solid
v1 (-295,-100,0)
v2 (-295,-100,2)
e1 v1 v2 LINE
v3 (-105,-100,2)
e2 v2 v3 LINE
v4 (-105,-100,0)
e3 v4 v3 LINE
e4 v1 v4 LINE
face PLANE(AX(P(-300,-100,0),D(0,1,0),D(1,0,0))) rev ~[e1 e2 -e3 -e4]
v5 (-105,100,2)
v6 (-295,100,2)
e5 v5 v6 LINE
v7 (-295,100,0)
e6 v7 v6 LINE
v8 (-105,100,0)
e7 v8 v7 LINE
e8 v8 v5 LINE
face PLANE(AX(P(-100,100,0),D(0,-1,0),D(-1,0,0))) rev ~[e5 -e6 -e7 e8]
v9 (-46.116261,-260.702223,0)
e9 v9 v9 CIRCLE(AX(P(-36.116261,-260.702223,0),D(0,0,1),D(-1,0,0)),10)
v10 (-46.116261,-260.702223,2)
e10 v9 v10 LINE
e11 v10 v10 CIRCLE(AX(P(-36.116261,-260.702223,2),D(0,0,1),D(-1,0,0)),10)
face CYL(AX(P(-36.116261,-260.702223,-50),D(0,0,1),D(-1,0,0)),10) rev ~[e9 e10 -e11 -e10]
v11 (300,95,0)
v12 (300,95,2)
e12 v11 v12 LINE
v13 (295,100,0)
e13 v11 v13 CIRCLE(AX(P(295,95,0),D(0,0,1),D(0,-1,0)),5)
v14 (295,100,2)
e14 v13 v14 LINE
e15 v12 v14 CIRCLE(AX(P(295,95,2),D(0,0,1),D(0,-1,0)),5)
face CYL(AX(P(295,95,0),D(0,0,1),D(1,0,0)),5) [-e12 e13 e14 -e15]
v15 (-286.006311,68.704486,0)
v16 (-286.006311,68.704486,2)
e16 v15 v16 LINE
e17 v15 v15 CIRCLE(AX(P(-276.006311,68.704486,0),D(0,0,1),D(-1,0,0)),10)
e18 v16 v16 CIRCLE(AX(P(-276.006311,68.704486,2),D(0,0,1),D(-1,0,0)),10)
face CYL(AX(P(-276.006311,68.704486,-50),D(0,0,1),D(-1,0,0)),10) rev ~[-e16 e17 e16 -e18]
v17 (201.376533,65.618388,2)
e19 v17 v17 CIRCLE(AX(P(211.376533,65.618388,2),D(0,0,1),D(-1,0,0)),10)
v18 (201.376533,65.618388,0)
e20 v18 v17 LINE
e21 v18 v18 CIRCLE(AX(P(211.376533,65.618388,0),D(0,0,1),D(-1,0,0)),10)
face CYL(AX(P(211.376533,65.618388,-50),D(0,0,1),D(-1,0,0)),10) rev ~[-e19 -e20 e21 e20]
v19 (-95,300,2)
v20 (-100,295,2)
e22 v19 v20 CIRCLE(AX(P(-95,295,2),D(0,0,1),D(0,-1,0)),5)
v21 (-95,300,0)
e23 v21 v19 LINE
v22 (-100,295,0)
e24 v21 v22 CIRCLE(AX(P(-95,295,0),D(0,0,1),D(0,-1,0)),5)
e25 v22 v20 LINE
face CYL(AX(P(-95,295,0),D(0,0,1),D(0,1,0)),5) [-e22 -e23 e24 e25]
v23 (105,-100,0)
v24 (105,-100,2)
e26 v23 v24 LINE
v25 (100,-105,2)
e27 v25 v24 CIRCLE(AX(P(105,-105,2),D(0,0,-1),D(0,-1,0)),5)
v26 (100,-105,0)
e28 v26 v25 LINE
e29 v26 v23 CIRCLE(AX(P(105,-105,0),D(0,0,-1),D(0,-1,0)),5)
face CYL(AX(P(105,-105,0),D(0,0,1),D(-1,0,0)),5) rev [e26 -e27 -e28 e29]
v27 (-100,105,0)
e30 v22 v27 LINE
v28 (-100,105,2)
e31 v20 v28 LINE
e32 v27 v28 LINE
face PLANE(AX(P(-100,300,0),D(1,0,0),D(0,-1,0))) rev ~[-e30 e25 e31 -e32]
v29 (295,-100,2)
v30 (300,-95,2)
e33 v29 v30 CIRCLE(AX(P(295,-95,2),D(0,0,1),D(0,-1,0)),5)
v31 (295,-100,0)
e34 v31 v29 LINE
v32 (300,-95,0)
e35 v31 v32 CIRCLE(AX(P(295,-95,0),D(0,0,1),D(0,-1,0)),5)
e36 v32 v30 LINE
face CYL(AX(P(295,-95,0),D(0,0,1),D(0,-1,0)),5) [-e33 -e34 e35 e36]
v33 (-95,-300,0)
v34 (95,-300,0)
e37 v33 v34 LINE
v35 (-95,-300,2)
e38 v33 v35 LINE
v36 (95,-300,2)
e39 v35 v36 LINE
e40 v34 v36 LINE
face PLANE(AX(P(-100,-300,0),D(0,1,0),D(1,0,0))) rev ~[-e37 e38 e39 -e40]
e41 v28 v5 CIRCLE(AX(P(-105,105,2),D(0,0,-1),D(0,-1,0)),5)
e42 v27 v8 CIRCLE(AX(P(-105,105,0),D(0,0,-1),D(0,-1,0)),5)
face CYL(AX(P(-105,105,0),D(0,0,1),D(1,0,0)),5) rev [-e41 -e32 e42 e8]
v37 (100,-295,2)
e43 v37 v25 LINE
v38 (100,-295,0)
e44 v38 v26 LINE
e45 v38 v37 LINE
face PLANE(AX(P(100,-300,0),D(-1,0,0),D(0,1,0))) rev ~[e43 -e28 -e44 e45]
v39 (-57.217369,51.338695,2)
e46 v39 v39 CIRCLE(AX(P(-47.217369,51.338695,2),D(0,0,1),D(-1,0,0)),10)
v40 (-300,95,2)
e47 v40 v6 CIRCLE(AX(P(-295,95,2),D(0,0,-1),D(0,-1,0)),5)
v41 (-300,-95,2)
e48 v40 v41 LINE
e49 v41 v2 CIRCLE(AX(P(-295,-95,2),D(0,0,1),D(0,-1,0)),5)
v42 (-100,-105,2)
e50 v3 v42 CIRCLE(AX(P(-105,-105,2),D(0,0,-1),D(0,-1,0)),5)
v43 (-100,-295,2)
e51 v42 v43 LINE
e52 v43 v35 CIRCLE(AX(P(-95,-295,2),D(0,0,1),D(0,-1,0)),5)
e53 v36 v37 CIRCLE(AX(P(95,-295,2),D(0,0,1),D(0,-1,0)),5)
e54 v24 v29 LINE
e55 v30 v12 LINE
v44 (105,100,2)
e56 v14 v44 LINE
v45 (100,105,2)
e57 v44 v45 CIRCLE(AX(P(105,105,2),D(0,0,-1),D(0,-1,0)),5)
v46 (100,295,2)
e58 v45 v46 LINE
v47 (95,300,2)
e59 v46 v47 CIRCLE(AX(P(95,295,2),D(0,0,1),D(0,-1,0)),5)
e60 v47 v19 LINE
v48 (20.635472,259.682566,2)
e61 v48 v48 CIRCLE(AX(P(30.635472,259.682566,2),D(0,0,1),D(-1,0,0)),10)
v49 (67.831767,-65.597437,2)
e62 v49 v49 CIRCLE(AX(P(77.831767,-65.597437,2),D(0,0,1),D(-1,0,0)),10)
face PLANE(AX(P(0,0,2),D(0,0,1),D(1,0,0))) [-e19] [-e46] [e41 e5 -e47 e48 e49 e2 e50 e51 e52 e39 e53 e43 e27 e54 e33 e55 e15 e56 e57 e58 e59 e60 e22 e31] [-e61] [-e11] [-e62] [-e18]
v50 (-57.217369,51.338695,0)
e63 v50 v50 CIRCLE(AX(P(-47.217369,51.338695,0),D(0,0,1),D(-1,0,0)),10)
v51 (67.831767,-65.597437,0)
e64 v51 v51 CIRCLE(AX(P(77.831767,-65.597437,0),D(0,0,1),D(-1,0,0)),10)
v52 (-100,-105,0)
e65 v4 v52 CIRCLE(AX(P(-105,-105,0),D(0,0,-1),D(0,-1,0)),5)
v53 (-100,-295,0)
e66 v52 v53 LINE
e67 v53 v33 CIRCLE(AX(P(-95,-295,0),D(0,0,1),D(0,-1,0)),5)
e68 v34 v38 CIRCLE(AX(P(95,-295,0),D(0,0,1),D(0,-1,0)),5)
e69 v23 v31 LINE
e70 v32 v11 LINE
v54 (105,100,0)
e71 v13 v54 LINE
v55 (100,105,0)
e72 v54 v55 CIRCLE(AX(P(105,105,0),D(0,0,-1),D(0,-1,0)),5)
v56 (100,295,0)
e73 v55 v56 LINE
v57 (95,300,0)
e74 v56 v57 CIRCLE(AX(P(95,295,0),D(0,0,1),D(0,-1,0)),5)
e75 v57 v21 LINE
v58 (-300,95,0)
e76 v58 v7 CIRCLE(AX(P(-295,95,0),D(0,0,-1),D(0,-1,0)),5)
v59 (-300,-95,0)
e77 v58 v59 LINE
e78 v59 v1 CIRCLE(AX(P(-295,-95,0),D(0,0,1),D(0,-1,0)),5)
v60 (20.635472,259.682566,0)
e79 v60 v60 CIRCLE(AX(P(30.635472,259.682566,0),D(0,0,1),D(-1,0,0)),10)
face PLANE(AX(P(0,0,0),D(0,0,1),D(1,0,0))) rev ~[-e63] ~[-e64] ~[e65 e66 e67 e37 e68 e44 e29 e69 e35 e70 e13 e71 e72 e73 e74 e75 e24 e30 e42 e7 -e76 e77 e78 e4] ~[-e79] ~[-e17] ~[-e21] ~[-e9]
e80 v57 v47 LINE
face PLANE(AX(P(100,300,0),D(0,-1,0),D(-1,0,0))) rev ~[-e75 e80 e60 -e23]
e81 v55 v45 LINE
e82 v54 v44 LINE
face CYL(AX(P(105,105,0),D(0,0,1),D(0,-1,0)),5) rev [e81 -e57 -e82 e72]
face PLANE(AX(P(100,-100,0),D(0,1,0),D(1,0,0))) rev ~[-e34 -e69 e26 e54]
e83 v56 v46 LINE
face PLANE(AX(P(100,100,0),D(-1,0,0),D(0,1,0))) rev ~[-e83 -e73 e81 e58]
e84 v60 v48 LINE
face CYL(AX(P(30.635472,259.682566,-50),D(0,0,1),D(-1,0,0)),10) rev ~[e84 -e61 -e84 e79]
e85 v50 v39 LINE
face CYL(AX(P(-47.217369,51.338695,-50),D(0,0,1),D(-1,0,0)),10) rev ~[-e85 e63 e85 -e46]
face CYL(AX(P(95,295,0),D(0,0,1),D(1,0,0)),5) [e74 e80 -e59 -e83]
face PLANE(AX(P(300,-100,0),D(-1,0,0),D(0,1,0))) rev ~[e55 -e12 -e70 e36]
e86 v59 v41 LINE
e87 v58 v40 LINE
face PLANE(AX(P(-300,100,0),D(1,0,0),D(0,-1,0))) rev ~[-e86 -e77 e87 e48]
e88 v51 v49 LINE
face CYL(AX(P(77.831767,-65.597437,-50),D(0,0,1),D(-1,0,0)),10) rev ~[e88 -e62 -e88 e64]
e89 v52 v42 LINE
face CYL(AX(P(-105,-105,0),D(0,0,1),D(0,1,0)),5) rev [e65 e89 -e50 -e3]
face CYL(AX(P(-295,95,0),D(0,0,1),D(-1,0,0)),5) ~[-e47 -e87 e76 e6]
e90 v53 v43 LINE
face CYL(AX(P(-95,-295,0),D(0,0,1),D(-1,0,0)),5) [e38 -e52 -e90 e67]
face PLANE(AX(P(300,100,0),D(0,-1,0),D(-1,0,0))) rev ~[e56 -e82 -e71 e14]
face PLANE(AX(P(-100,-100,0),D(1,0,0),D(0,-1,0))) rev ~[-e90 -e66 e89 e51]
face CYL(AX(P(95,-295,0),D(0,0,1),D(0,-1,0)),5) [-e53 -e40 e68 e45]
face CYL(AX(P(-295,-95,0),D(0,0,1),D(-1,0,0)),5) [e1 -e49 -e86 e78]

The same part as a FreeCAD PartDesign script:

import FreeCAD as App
import Part
import Sketcher
from FreeCAD import Vector
Q = App.Units.Quantity


def edges_at(feature, points):
    """Names of the edges that pass closest to the given points."""
    edges = feature.Shape.Edges
    near = lambda p: min(range(len(edges)), key=lambda i: edges[i].distToShape(Part.Vertex(*p))[0])
    return sorted({f"Edge{near(p) + 1}" for p in points})


def add_polygon(sketch, points):
    """Adds a closed chain of lines whose ends are joined by coincident constraints."""
    first, n = sketch.GeometryCount, len(points)
    for a, b in zip(points, points[1:] + points[:1]):
        sketch.addGeometry(Part.LineSegment(App.Vector(*a, 0), App.Vector(*b, 0)), False)
    for i in range(n):
        sketch.addConstraint(Sketcher.Constraint("Coincident", first + i, 2, first + (i + 1) % n, 1))

doc = App.newDocument("Part")
body = doc.addObject("PartDesign::Body", "Body")

# Sketch on XY plane
sketch1 = body.newObject("Sketcher::SketchObject", "Sketch")
sketch1.AttachmentSupport = (doc.getObject("XY_Plane"), [""])
sketch1.MapMode = "FlatFace"
add_polygon(sketch1, [(-300, 100), (-300, -100), (-100, -100), (-100, -300), (100, -300), (100, -100), (300, -100), (300, 100), (100, 100), (100, 300), (-100, 300), (-100, 100)])  # lines 0-11
sketch1.addConstraint([
    Sketcher.Constraint("Vertical", 0),
    Sketcher.Constraint("Horizontal", 1),
    Sketcher.Constraint("Vertical", 2),
    Sketcher.Constraint("Horizontal", 3),
    Sketcher.Constraint("Vertical", 4),
    Sketcher.Constraint("Horizontal", 5),
    Sketcher.Constraint("Vertical", 6),
    Sketcher.Constraint("Horizontal", 7),
    Sketcher.Constraint("Vertical", 8),
    Sketcher.Constraint("Horizontal", 9),
    Sketcher.Constraint("Vertical", 10),
    Sketcher.Constraint("Horizontal", 11),
    Sketcher.Constraint("Symmetric", 0, 2, 6, 2, -1, 1),
    Sketcher.Constraint("Symmetric", 2, 2, 8, 2, -1, 1),
    Sketcher.Constraint("Symmetric", 4, 2, 10, 2, -1, 1),
    Sketcher.Constraint("Symmetric", 1, 2, 4, 2, -2),
    Sketcher.Constraint("Equal", 1, 3),
    Sketcher.Constraint("Equal", 11, 0),
    Sketcher.Constraint("Equal", 0, 2),
    Sketcher.Constraint("DistanceX", 1, 1, 1, 2, Q("200 mm")),
])
pad1 = body.newObject("PartDesign::Pad", "Pad")
pad1.Profile = sketch1
pad1.Length = 2
doc.recompute()

fillet = body.newObject("PartDesign::Fillet", "Fillet")
fillet.Base = (pad1, edges_at(pad1, [
    (-300, -100, 1),
    (-100, -100, 1),
    (-100, -300, 1),
    (100, -300, 1),
    (-300, 100, 1),
    (-100, 300, 1),
    (100, 300, 1),
    (100, 100, 1),
    (300, 100, 1),
    (300, -100, 1),
    (-100, 100, 1),
    (100, -100, 1),
]))
fillet.Radius = 5

# Sketch on XY plane
sketch2 = body.newObject("Sketcher::SketchObject", "Sketch001")
sketch2.AttachmentSupport = (doc.getObject("XY_Plane"), [""])
sketch2.MapMode = "FlatFace"
sketch2.addGeometry([
    Part.Circle(Vector(-276, 69, 0), Vector(0, 0, 1), 10),  # 0
    Part.Circle(Vector(-47, 51, 0), Vector(0, 0, 1), 10),  # 1
    Part.Circle(Vector(78, -66, 0), Vector(0, 0, 1), 10),  # 2
    Part.Circle(Vector(-36, -261, 0), Vector(0, 0, 1), 10),  # 3
    Part.Circle(Vector(211, 66, 0), Vector(0, 0, 1), 10),  # 4
    Part.Circle(Vector(31, 260, 0), Vector(0, 0, 1), 10),  # 5
], False)
sketch2.addConstraint([
    Sketcher.Constraint("Equal", 0, 1),
    Sketcher.Constraint("Equal", 1, 2),
    Sketcher.Constraint("Equal", 2, 3),
    Sketcher.Constraint("Equal", 3, 4),
    Sketcher.Constraint("Equal", 4, 5),
    Sketcher.Constraint("Diameter", 0, Q("20 mm")),
    Sketcher.Constraint("DistanceX", 1, 3, 4, 3, Q("258.593902 mm")),
    Sketcher.Constraint("DistanceX", 0, 3, -1, 1, Q("276.006311 mm")),
    Sketcher.Constraint("DistanceX", 1, 3, -1, 1, Q("47.217369 mm")),
    Sketcher.Constraint("DistanceX", 3, 3, -1, 1, Q("36.116261 mm")),
    Sketcher.Constraint("DistanceY", -1, 1, 4, 3, Q("65.618388 mm")),
    Sketcher.Constraint("DistanceY", 1, 3, 0, 3, Q("17.365791 mm")),
    Sketcher.Constraint("DistanceX", 0, 3, 2, 3, Q("353.838079 mm")),
    Sketcher.Constraint("DistanceY", 3, 3, 0, 3, Q("329.406708 mm")),
    Sketcher.Constraint("DistanceY", 3, 3, 4, 3, Q("326.320611 mm")),
    Sketcher.Constraint("DistanceX", 1, 3, 5, 3, Q("77.852841 mm")),
    Sketcher.Constraint("DistanceY", 1, 3, 5, 3, Q("208.343871 mm")),
    Sketcher.Constraint("DistanceY", 2, 3, -1, 1, Q("65.597437 mm")),
])
doc.recompute()
hole = body.newObject("PartDesign::Hole", "Hole")
hole.Profile = sketch2
hole.ThreadType = "None"
hole.Diameter = 20
hole.DepthType = "Dimension"
hole.Depth = 50
hole.DrillPoint = "Angled"
hole.DrillPointAngle = 118
hole.Reversed = True

doc.recompute()
